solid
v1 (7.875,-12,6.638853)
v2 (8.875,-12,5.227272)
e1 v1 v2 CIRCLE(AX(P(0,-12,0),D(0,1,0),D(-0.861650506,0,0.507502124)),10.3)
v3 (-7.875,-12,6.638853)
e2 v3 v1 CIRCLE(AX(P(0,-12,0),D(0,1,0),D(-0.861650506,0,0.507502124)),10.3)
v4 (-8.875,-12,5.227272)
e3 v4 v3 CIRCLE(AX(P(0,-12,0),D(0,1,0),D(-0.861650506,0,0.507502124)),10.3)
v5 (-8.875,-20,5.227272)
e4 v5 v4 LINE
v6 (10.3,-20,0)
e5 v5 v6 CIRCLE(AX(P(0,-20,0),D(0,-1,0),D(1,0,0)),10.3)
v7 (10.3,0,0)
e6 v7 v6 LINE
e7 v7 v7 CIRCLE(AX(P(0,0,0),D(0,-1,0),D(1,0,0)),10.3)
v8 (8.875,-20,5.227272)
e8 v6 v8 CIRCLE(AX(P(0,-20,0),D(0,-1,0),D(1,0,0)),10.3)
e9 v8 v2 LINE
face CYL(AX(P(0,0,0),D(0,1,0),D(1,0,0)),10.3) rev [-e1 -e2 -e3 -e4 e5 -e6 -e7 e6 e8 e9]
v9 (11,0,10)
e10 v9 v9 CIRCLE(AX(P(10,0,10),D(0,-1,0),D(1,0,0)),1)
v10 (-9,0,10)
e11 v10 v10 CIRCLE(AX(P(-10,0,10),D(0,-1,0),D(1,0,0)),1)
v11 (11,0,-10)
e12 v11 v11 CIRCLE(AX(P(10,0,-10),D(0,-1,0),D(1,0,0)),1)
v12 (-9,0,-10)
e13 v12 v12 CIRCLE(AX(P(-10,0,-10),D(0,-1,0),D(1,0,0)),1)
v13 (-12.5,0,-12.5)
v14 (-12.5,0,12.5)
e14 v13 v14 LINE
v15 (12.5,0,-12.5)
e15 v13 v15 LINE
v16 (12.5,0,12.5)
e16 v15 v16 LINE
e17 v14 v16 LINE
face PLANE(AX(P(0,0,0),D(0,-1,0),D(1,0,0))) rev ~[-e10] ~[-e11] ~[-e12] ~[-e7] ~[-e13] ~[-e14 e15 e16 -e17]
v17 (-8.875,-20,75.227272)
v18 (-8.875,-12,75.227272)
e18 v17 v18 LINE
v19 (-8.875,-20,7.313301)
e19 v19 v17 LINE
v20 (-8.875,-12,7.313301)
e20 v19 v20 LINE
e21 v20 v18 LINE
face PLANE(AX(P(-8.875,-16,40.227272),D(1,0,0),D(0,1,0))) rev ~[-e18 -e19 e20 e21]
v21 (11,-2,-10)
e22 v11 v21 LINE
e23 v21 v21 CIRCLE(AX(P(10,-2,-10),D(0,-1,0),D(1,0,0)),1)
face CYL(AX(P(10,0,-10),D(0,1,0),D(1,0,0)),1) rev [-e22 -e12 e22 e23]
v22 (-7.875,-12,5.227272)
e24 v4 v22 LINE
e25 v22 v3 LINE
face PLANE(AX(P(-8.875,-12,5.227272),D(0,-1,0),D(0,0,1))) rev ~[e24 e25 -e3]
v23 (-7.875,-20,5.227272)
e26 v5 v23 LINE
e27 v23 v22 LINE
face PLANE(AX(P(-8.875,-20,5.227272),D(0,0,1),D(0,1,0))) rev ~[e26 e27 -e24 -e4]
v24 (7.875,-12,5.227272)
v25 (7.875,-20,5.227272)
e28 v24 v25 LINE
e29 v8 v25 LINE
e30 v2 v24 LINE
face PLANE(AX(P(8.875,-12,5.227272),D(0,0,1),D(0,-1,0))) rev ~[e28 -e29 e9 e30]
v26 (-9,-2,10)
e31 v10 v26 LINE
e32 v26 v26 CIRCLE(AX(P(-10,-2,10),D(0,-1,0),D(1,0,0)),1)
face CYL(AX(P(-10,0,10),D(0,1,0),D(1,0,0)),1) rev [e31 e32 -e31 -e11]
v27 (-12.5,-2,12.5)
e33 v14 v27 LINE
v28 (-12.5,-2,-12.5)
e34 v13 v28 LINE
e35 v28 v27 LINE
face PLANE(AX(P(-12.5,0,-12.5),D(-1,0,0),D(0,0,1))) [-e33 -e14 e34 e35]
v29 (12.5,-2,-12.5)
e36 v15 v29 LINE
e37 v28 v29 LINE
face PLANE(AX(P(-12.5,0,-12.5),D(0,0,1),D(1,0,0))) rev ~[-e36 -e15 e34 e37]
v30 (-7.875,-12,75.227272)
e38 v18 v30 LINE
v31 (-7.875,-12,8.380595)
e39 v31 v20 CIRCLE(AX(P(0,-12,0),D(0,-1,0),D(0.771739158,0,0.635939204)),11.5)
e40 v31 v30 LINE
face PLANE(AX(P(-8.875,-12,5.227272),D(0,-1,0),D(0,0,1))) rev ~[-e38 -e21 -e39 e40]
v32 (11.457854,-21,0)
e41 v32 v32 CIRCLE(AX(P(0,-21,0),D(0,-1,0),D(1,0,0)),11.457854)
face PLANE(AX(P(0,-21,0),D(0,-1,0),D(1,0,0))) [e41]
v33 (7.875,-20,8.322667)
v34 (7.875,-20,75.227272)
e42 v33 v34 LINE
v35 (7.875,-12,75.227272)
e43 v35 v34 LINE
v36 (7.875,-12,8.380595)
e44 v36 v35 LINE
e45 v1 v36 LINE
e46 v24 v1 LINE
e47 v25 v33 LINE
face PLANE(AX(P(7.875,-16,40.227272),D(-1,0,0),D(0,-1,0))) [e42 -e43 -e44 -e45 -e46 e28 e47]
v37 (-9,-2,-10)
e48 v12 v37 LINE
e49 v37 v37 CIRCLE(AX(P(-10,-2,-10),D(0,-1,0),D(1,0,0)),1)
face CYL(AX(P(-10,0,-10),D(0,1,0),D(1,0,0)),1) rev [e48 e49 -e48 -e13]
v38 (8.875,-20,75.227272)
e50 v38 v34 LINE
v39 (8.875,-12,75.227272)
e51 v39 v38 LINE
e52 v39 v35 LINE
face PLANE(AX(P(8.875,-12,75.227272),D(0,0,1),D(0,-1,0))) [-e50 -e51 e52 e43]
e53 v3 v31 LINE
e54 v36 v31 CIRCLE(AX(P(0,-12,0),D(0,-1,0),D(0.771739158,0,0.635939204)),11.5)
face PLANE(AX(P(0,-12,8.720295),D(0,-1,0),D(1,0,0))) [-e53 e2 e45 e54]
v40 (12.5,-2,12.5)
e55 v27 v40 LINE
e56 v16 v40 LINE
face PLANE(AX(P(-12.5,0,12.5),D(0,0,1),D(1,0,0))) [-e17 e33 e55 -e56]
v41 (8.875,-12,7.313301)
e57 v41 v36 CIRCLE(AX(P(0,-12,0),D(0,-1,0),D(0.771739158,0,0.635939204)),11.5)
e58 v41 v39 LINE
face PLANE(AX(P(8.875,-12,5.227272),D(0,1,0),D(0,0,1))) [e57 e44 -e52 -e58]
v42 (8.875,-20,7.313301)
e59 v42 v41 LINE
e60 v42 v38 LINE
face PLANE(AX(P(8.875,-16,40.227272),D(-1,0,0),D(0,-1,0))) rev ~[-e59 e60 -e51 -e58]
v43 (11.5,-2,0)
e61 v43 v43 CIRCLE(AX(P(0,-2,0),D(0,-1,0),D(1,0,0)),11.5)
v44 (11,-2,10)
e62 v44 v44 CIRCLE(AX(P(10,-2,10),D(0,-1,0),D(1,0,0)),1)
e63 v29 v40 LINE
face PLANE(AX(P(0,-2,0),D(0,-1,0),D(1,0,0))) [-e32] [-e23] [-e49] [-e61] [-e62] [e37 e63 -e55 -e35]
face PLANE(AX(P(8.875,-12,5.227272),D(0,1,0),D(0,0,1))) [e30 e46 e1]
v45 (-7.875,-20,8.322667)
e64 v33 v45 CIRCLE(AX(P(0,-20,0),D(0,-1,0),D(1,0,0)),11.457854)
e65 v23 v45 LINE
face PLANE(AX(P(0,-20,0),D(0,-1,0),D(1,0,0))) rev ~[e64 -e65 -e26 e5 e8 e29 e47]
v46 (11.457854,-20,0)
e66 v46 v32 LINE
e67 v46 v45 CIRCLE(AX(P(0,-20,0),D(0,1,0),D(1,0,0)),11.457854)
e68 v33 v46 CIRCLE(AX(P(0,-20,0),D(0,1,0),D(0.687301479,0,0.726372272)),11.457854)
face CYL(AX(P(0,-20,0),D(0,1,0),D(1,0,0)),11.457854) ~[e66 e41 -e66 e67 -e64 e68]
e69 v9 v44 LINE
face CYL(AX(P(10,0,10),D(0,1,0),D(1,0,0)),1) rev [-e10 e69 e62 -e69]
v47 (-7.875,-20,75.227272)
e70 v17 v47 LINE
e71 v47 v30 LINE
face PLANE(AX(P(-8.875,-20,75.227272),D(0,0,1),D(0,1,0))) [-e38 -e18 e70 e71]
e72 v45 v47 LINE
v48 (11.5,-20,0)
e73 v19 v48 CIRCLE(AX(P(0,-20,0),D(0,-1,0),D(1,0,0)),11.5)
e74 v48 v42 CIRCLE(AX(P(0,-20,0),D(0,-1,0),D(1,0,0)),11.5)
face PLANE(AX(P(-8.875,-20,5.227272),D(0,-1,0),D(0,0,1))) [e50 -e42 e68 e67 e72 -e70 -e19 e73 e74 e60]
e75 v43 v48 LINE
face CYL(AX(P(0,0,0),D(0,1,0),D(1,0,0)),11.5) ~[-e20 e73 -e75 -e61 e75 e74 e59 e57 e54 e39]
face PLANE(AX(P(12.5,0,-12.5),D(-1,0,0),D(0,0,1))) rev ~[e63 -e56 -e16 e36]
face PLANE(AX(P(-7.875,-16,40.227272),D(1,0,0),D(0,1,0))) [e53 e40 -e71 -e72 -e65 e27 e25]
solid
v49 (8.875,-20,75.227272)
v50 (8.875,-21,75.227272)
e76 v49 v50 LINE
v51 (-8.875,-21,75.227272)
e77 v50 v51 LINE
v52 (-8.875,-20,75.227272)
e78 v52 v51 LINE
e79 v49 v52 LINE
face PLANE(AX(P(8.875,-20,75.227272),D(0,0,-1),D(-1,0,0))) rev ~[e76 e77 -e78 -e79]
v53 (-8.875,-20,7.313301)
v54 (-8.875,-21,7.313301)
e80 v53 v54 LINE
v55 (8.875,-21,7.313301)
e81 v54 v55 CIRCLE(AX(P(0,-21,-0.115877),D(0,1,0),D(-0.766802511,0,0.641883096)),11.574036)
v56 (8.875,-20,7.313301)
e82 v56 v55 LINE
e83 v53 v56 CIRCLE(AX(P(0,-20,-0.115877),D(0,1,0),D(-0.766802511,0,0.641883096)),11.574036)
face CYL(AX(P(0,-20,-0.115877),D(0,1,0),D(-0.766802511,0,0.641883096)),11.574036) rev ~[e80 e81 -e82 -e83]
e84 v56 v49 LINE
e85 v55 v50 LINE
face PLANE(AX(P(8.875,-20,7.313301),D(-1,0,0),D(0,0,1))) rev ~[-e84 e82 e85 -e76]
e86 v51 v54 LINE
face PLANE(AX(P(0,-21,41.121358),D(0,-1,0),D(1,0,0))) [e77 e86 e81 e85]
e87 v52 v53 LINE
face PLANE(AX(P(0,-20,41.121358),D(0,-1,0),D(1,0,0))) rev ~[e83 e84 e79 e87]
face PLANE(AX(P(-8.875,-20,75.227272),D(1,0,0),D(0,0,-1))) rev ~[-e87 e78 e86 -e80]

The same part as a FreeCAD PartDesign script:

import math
import FreeCAD as App
import Part
import Sketcher

V = App.Vector
Q = App.Units.Quantity


def add_polygon(sketch, points):
    """Adds a closed chain of lines whose ends are joined by coincident constraints."""
    first, n = sketch.GeometryCount, len(points)
    for a, b in zip(points, points[1:] + points[:1]):
        sketch.addGeometry(Part.LineSegment(App.Vector(*a, 0), App.Vector(*b, 0)), False)
    for i in range(n):
        sketch.addConstraint(Sketcher.Constraint("Coincident", first + i, 2, first + (i + 1) % n, 1))

doc = App.newDocument("Part")
params = doc.addObject("Spreadsheet::Sheet", "Params")
for row, (alias, value) in enumerate([
    ("sketch1_diameter", "23 mm"),
    ("sketch1_diameter2", "20.6 mm"),
    ("pad1_length", "20 mm"),
    ("sketch2_diameter", "2 mm"),
    ("sketch2_diameter2", "23 mm"),
    ("sketch2_width", "25 mm"),
    ("pad2_length", "2 mm"),
    ("sketch3_radius", "11.5 mm"),
    ("sketch3_radius2", "10.3 mm"),
    ("pocket1_length", "8 mm"),
    ("pad3_length", "1 mm"),
    ("sketch5_width", "8 mm"),
    ("sketch5_height", "70 mm"),
    ("pad4_length", "1 mm"),
    ("sketch6_width", "8 mm"),
    ("sketch6_height", "70 mm"),
    ("pad5_length", "1 mm"),
    ("sketch7_width", "17.75 mm"),
    ("pad6_length", "1 mm"),
], start=1):
    params.set(f"A{row}", alias)
    params.set(f"B{row}", "=" + value)
    params.setAlias(f"B{row}", alias)

body = doc.addObject("PartDesign::Body", "Body")

# Sketch on XZ plane
sketch1 = body.newObject("Sketcher::SketchObject", "Sketch")
sketch1.AttachmentSupport = (doc.getObject("XZ_Plane"), [""])
sketch1.MapMode = "FlatFace"
sketch1.addGeometry(Part.Circle(V(0, 0, 0), V(0, 0, 1), 12), False)
sketch1.addGeometry(Part.Circle(V(0, 0, 0), V(0, 0, 1), 10), False)
sketch1.addConstraint(Sketcher.Constraint("Coincident", 0, 3, -1, 1))
sketch1.addConstraint(Sketcher.Constraint("Coincident", 1, 3, -1, 1))
sketch1.addConstraint(Sketcher.Constraint("Diameter", 0, Q("23 mm")))
sketch1.addConstraint(Sketcher.Constraint("Diameter", 1, Q("20.6 mm")))
sketch1.setExpression("Constraints[2]", "Params.sketch1_diameter")
sketch1.setExpression("Constraints[3]", "Params.sketch1_diameter2")
pad1 = body.newObject("PartDesign::Pad", "Pad")
pad1.Profile = sketch1
pad1.setExpression("Length", "Params.pad1_length")

# Sketch on XZ plane
sketch2 = body.newObject("Sketcher::SketchObject", "Sketch001")
sketch2.AttachmentSupport = (doc.getObject("XZ_Plane"), [""])
sketch2.MapMode = "FlatFace"
add_polygon(sketch2, [(-12.5, 12.5), (-12.5, -12.5), (12.5, -12.5), (12.5, 12.5)])  # lines 0-3
sketch2.addGeometry(Part.Circle(V(-10, -10, 0), V(0, 0, 1), 1), False)  # 4
sketch2.addGeometry(Part.Circle(V(10, -10, 0), V(0, 0, 1), 1), False)  # 5
sketch2.addGeometry(Part.Circle(V(-10, 10, 0), V(0, 0, 1), 1), False)  # 6
sketch2.addGeometry(Part.Circle(V(0, 0, 0), V(0, 0, 1), 11.5), False)  # 7
sketch2.addGeometry(Part.Circle(V(10, 10, 0), V(0, 0, 1), 1), False)  # 8
sketch2.addConstraint(Sketcher.Constraint("Vertical", 0))
sketch2.addConstraint(Sketcher.Constraint("Horizontal", 1))
sketch2.addConstraint(Sketcher.Constraint("Vertical", 2))
sketch2.addConstraint(Sketcher.Constraint("Horizontal", 3))
sketch2.addConstraint(Sketcher.Constraint("Coincident", 7, 3, -1, 1))
sketch2.addConstraint(Sketcher.Constraint("Equal", 4, 5))
sketch2.addConstraint(Sketcher.Constraint("Equal", 5, 6))
sketch2.addConstraint(Sketcher.Constraint("Equal", 6, 8))
sketch2.addConstraint(Sketcher.Constraint("Symmetric", 5, 3, 6, 3, -1, 1))
sketch2.addConstraint(Sketcher.Constraint("Symmetric", 4, 3, 8, 3, -1, 1))
sketch2.addConstraint(Sketcher.Constraint("Symmetric", 0, 2, 2, 2, -1, 1))
sketch2.addConstraint(Sketcher.Constraint("Symmetric", 4, 3, 5, 3, -2))
sketch2.addConstraint(Sketcher.Constraint("Equal", 3, 0))
sketch2.addConstraint(Sketcher.Constraint("Diameter", 4, Q("2 mm")))
sketch2.addConstraint(Sketcher.Constraint("Diameter", 7, Q("23 mm")))
sketch2.addConstraint(Sketcher.Constraint("DistanceX", 1, 1, 1, 2, Q("25 mm")))
sketch2.addConstraint(Sketcher.Constraint("DistanceX", 4, 3, -1, 1, Q("10 mm")))
sketch2.addConstraint(Sketcher.Constraint("DistanceY", 4, 3, -1, 1, Q("10 mm")))
sketch2.setExpression("Constraints[17]", "Params.sketch2_diameter")
sketch2.setExpression("Constraints[18]", "Params.sketch2_diameter2")
sketch2.setExpression("Constraints[19]", "Params.sketch2_width")
pad2 = body.newObject("PartDesign::Pad", "Pad001")
pad2.Profile = sketch2
pad2.setExpression("Length", "Params.pad2_length")

# Sketch on XZ plane
sketch3 = body.newObject("Sketcher::SketchObject", "Sketch002")
sketch3.AttachmentSupport = (doc.getObject("XZ_Plane"), [""])
sketch3.MapMode = "FlatFace"
sketch3.AttachmentOffset = App.Placement(V(0, 0, 20), App.Rotation())
sketch3.addGeometry(Part.ArcOfCircle(Part.Circle(V(0, 0, 0), V(0, 0, 1), 11.5), math.radians(39), math.radians(141)), False)
sketch3.addGeometry(Part.LineSegment(V(-8.9, 7.3, 0), V(-8.9, 5.2, 0)), False)
sketch3.addGeometry(Part.ArcOfCircle(Part.Circle(V(0, 0, 0), V(0, 0, 1), 10.3), math.radians(30), math.radians(150)), False)
sketch3.addGeometry(Part.LineSegment(V(8.9, 5.2, 0), V(8.9, 7.3, 0)), False)
sketch3.addConstraint(Sketcher.Constraint("Coincident", 0, 2, 1, 1))
sketch3.addConstraint(Sketcher.Constraint("Coincident", 1, 2, 2, 2))
sketch3.addConstraint(Sketcher.Constraint("Coincident", 2, 1, 3, 1))
sketch3.addConstraint(Sketcher.Constraint("Coincident", 3, 2, 0, 1))
sketch3.addConstraint(Sketcher.Constraint("Vertical", 1))
sketch3.addConstraint(Sketcher.Constraint("Vertical", 3))
sketch3.addConstraint(Sketcher.Constraint("Coincident", 0, 3, -1, 1))
sketch3.addConstraint(Sketcher.Constraint("Coincident", 2, 3, -1, 1))
sketch3.addConstraint(Sketcher.Constraint("Horizontal", 1, 2, 2, 1))
sketch3.addConstraint(Sketcher.Constraint("Radius", 0, Q("11.5 mm")))
sketch3.addConstraint(Sketcher.Constraint("Radius", 2, Q("10.3 mm")))
sketch3.addConstraint(Sketcher.Constraint("DistanceX", 1, 2, 2, 1, Q("17.75 mm")))
sketch3.setExpression("Constraints[9]", "Params.sketch3_radius")
sketch3.setExpression("Constraints[10]", "Params.sketch3_radius2")
pocket1 = body.newObject("PartDesign::Pocket", "Pocket")
pocket1.Profile = sketch3
pocket1.setExpression("Length", "Params.pocket1_length")

# Sketch on XZ plane
sketch4 = body.newObject("Sketcher::SketchObject", "Sketch003")
sketch4.AttachmentSupport = (doc.getObject("XZ_Plane"), [""])
sketch4.MapMode = "FlatFace"
sketch4.AttachmentOffset = App.Placement(V(0, 0, 20), App.Rotation())
sketch4.addGeometry(Part.Circle(V(0, 0, 0), V(0, 0, 1), 11), False)
sketch4.addConstraint(Sketcher.Constraint("Coincident", 0, 3, -1, 1))
sketch4.addConstraint(Sketcher.Constraint("Diameter", 0, Q("22.915708 mm")))
pad3 = body.newObject("PartDesign::Pad", "Pad002")
pad3.Profile = sketch4
pad3.setExpression("Length", "Params.pad3_length")

# Sketch on YZ plane
sketch5 = body.newObject("Sketcher::SketchObject", "Sketch004")
sketch5.AttachmentSupport = (doc.getObject("YZ_Plane"), [""])
sketch5.MapMode = "FlatFace"
sketch5.AttachmentOffset = App.Placement(V(0, 0, 8.875), App.Rotation())
add_polygon(sketch5, [(-12, 75), (-12, 5), (-20, 5), (-20, 75)])  # lines 0-3
sketch5.addConstraint(Sketcher.Constraint("Vertical", 0))
sketch5.addConstraint(Sketcher.Constraint("Horizontal", 1))
sketch5.addConstraint(Sketcher.Constraint("Vertical", 2))
sketch5.addConstraint(Sketcher.Constraint("Horizontal", 3))
sketch5.addConstraint(Sketcher.Constraint("DistanceX", 1, 2, 1, 1, Q("8 mm")))
sketch5.addConstraint(Sketcher.Constraint("DistanceY", 0, 2, 0, 1, Q("70 mm")))
sketch5.addConstraint(Sketcher.Constraint("DistanceX", 0, 2, -1, 1, Q("12 mm")))
sketch5.addConstraint(Sketcher.Constraint("DistanceY", -1, 1, 2, 2, Q("75.227272 mm")))
sketch5.setExpression("Constraints[8]", "Params.sketch5_width")
sketch5.setExpression("Constraints[9]", "Params.sketch5_height")
pad4 = body.newObject("PartDesign::Pad", "Pad003")
pad4.Profile = sketch5
pad4.setExpression("Length", "Params.pad4_length")
pad4.Reversed = True

# Sketch on YZ plane
sketch6 = body.newObject("Sketcher::SketchObject", "Sketch005")
sketch6.AttachmentSupport = (doc.getObject("YZ_Plane"), [""])
sketch6.MapMode = "FlatFace"
sketch6.AttachmentOffset = App.Placement(V(0, 0, -8.875), App.Rotation())
add_polygon(sketch6, [(-20, 75), (-20, 5), (-12, 5), (-12, 75)])  # lines 0-3
sketch6.addConstraint(Sketcher.Constraint("Vertical", 0))
sketch6.addConstraint(Sketcher.Constraint("Horizontal", 1))
sketch6.addConstraint(Sketcher.Constraint("Vertical", 2))
sketch6.addConstraint(Sketcher.Constraint("Horizontal", 3))
sketch6.addConstraint(Sketcher.Constraint("DistanceX", 1, 1, 1, 2, Q("8 mm")))
sketch6.addConstraint(Sketcher.Constraint("DistanceY", 0, 2, 0, 1, Q("70 mm")))
sketch6.addConstraint(Sketcher.Constraint("DistanceX", 0, 2, -1, 1, Q("20 mm")))
sketch6.addConstraint(Sketcher.Constraint("DistanceY", -1, 1, 2, 2, Q("75.227272 mm")))
sketch6.setExpression("Constraints[8]", "Params.sketch6_width")
sketch6.setExpression("Constraints[9]", "Params.sketch6_height")
pad5 = body.newObject("PartDesign::Pad", "Pad004")
pad5.Profile = sketch6
pad5.setExpression("Length", "Params.pad5_length")
body2 = doc.addObject("PartDesign::Body", "Body001")

# Sketch on XZ plane
sketch7 = body2.newObject("Sketcher::SketchObject", "Sketch006")
sketch7.AttachmentSupport = (doc.getObject("XZ_Plane001"), [""])
sketch7.MapMode = "FlatFace"
sketch7.AttachmentOffset = App.Placement(V(0, 0, 20), App.Rotation())
sketch7.addGeometry(Part.LineSegment(V(9, 75, 0), V(-9, 75, 0)), False)
sketch7.addGeometry(Part.LineSegment(V(-9, 75, 0), V(-9, 7, 0)), False)
sketch7.addGeometry(Part.ArcOfCircle(Part.Circle(V(0, 0, 0), V(0, 0, 1), 12), math.radians(40), math.radians(140)), False)
sketch7.addGeometry(Part.LineSegment(V(9, 7, 0), V(9, 75, 0)), False)
sketch7.addConstraint(Sketcher.Constraint("Coincident", 0, 2, 1, 1))
sketch7.addConstraint(Sketcher.Constraint("Coincident", 1, 2, 2, 2))
sketch7.addConstraint(Sketcher.Constraint("Coincident", 2, 1, 3, 1))
sketch7.addConstraint(Sketcher.Constraint("Coincident", 3, 2, 0, 1))
sketch7.addConstraint(Sketcher.Constraint("Horizontal", 0))
sketch7.addConstraint(Sketcher.Constraint("Vertical", 1))
sketch7.addConstraint(Sketcher.Constraint("Vertical", 3))
sketch7.addConstraint(Sketcher.Constraint("Symmetric", 1, 2, 2, 1, -2))
sketch7.addConstraint(Sketcher.Constraint("DistanceX", 0, 2, 0, 1, Q("17.75 mm")))
sketch7.addConstraint(Sketcher.Constraint("Radius", 2, Q("11.574036 mm")))
sketch7.addConstraint(Sketcher.Constraint("DistanceY", 1, 2, 1, 1, Q("67.913971 mm")))
sketch7.addConstraint(Sketcher.Constraint("DistanceY", -1, 1, 1, 2, Q("7.313301 mm")))
sketch7.setExpression("Constraints[8]", "Params.sketch7_width")
pad6 = body2.newObject("PartDesign::Pad", "Pad005")
pad6.Profile = sketch7
pad6.setExpression("Length", "Params.pad6_length")

doc.recompute()
